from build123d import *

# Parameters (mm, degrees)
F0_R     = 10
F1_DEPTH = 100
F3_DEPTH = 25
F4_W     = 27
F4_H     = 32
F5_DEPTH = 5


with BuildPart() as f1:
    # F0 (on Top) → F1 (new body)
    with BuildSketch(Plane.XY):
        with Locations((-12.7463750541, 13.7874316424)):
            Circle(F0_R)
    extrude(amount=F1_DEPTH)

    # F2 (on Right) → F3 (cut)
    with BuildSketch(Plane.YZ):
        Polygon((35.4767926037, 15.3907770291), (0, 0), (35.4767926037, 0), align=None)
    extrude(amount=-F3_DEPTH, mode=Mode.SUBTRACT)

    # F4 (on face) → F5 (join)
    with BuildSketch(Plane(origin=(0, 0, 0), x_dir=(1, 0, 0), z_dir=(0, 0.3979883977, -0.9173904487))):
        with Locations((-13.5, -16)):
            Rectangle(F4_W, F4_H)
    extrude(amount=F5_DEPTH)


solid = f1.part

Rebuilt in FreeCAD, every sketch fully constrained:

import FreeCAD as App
import Part
import Sketcher

V = App.Vector

doc = App.newDocument("Part")
body = doc.addObject("PartDesign::Body", "Body")

sketch1 = body.newObject("Sketcher::SketchObject", "Sketch")
sketch1.AttachmentSupport = (doc.getObject("XY_Plane"), [""])
sketch1.MapMode = "FlatFace"
sketch1.addGeometry(Part.Circle(V(-13, 14, 0), V(0, 0, 1), 10), False)
sketch1.addConstraint(Sketcher.Constraint("Diameter", 0, 20.0))
sketch1.addConstraint(Sketcher.Constraint("DistanceY", -1, 1, 0, 3, 13.787432))
sketch1.addConstraint(Sketcher.Constraint("DistanceX", 0, 3, -1, 1, 12.746375))
pad1 = body.newObject("PartDesign::Pad", "Pad")
pad1.Profile = sketch1
pad1.Length = 100

sketch2 = body.newObject("Sketcher::SketchObject", "Sketch001")
sketch2.AttachmentSupport = (doc.getObject("YZ_Plane"), [""])
sketch2.MapMode = "FlatFace"
sketch2.addGeometry(Part.LineSegment(V(35, 15, 0), V(0, 0, 0)), False)
sketch2.addGeometry(Part.LineSegment(V(0, 0, 0), V(35, 0, 0)), False)
sketch2.addGeometry(Part.LineSegment(V(35, 0, 0), V(35, 15, 0)), False)
sketch2.addConstraint(Sketcher.Constraint("Coincident", 0, 2, 1, 1))
sketch2.addConstraint(Sketcher.Constraint("Coincident", 1, 2, 2, 1))
sketch2.addConstraint(Sketcher.Constraint("Coincident", 2, 2, 0, 1))
sketch2.addConstraint(Sketcher.Constraint("Horizontal", 1))
sketch2.addConstraint(Sketcher.Constraint("Vertical", 2))
sketch2.addConstraint(Sketcher.Constraint("Coincident", 0, 2, -1, 1))
sketch2.addConstraint(Sketcher.Constraint("Distance", 0, 38.671421))
sketch2.addConstraint(Sketcher.Constraint("DistanceX", 1, 1, 1, 2, 35.476793))
pocket1 = body.newObject("PartDesign::Pocket", "Pocket")
pocket1.Profile = sketch2
pocket1.Length = 25

sketch3 = body.newObject("Sketcher::SketchObject", "Sketch002")
sketch3.Placement = App.Placement(V(0, 0, 0), App.Rotation(V(1, 0, 0), V(0, -0.917390449, -0.397988398), V(0, 0.397988398, -0.917390449), "ZXY"))
sketch3.addGeometry(Part.LineSegment(V(-27, 0, 0), V(-27, -32, 0)), False)
sketch3.addGeometry(Part.LineSegment(V(-27, -32, 0), V(0, -32, 0)), False)
sketch3.addGeometry(Part.LineSegment(V(0, -32, 0), V(0, 0, 0)), False)
sketch3.addGeometry(Part.LineSegment(V(0, 0, 0), V(-27, 0, 0)), False)
sketch3.addConstraint(Sketcher.Constraint("Coincident", 0, 2, 1, 1))
sketch3.addConstraint(Sketcher.Constraint("Coincident", 1, 2, 2, 1))
sketch3.addConstraint(Sketcher.Constraint("Coincident", 2, 2, 3, 1))
sketch3.addConstraint(Sketcher.Constraint("Coincident", 3, 2, 0, 1))
sketch3.addConstraint(Sketcher.Constraint("Vertical", 0))
sketch3.addConstraint(Sketcher.Constraint("Horizontal", 1))
sketch3.addConstraint(Sketcher.Constraint("Vertical", 2))
sketch3.addConstraint(Sketcher.Constraint("Horizontal", 3))
sketch3.addConstraint(Sketcher.Constraint("Coincident", 2, 2, -1, 1))
sketch3.addConstraint(Sketcher.Constraint("DistanceX", 1, 1, 1, 2, 27.0))
sketch3.addConstraint(Sketcher.Constraint("DistanceY", 0, 2, 0, 1, 32.0))
pad2 = body.newObject("PartDesign::Pad", "Pad001")
pad2.Profile = sketch3
pad2.Length = 5

doc.recompute()
